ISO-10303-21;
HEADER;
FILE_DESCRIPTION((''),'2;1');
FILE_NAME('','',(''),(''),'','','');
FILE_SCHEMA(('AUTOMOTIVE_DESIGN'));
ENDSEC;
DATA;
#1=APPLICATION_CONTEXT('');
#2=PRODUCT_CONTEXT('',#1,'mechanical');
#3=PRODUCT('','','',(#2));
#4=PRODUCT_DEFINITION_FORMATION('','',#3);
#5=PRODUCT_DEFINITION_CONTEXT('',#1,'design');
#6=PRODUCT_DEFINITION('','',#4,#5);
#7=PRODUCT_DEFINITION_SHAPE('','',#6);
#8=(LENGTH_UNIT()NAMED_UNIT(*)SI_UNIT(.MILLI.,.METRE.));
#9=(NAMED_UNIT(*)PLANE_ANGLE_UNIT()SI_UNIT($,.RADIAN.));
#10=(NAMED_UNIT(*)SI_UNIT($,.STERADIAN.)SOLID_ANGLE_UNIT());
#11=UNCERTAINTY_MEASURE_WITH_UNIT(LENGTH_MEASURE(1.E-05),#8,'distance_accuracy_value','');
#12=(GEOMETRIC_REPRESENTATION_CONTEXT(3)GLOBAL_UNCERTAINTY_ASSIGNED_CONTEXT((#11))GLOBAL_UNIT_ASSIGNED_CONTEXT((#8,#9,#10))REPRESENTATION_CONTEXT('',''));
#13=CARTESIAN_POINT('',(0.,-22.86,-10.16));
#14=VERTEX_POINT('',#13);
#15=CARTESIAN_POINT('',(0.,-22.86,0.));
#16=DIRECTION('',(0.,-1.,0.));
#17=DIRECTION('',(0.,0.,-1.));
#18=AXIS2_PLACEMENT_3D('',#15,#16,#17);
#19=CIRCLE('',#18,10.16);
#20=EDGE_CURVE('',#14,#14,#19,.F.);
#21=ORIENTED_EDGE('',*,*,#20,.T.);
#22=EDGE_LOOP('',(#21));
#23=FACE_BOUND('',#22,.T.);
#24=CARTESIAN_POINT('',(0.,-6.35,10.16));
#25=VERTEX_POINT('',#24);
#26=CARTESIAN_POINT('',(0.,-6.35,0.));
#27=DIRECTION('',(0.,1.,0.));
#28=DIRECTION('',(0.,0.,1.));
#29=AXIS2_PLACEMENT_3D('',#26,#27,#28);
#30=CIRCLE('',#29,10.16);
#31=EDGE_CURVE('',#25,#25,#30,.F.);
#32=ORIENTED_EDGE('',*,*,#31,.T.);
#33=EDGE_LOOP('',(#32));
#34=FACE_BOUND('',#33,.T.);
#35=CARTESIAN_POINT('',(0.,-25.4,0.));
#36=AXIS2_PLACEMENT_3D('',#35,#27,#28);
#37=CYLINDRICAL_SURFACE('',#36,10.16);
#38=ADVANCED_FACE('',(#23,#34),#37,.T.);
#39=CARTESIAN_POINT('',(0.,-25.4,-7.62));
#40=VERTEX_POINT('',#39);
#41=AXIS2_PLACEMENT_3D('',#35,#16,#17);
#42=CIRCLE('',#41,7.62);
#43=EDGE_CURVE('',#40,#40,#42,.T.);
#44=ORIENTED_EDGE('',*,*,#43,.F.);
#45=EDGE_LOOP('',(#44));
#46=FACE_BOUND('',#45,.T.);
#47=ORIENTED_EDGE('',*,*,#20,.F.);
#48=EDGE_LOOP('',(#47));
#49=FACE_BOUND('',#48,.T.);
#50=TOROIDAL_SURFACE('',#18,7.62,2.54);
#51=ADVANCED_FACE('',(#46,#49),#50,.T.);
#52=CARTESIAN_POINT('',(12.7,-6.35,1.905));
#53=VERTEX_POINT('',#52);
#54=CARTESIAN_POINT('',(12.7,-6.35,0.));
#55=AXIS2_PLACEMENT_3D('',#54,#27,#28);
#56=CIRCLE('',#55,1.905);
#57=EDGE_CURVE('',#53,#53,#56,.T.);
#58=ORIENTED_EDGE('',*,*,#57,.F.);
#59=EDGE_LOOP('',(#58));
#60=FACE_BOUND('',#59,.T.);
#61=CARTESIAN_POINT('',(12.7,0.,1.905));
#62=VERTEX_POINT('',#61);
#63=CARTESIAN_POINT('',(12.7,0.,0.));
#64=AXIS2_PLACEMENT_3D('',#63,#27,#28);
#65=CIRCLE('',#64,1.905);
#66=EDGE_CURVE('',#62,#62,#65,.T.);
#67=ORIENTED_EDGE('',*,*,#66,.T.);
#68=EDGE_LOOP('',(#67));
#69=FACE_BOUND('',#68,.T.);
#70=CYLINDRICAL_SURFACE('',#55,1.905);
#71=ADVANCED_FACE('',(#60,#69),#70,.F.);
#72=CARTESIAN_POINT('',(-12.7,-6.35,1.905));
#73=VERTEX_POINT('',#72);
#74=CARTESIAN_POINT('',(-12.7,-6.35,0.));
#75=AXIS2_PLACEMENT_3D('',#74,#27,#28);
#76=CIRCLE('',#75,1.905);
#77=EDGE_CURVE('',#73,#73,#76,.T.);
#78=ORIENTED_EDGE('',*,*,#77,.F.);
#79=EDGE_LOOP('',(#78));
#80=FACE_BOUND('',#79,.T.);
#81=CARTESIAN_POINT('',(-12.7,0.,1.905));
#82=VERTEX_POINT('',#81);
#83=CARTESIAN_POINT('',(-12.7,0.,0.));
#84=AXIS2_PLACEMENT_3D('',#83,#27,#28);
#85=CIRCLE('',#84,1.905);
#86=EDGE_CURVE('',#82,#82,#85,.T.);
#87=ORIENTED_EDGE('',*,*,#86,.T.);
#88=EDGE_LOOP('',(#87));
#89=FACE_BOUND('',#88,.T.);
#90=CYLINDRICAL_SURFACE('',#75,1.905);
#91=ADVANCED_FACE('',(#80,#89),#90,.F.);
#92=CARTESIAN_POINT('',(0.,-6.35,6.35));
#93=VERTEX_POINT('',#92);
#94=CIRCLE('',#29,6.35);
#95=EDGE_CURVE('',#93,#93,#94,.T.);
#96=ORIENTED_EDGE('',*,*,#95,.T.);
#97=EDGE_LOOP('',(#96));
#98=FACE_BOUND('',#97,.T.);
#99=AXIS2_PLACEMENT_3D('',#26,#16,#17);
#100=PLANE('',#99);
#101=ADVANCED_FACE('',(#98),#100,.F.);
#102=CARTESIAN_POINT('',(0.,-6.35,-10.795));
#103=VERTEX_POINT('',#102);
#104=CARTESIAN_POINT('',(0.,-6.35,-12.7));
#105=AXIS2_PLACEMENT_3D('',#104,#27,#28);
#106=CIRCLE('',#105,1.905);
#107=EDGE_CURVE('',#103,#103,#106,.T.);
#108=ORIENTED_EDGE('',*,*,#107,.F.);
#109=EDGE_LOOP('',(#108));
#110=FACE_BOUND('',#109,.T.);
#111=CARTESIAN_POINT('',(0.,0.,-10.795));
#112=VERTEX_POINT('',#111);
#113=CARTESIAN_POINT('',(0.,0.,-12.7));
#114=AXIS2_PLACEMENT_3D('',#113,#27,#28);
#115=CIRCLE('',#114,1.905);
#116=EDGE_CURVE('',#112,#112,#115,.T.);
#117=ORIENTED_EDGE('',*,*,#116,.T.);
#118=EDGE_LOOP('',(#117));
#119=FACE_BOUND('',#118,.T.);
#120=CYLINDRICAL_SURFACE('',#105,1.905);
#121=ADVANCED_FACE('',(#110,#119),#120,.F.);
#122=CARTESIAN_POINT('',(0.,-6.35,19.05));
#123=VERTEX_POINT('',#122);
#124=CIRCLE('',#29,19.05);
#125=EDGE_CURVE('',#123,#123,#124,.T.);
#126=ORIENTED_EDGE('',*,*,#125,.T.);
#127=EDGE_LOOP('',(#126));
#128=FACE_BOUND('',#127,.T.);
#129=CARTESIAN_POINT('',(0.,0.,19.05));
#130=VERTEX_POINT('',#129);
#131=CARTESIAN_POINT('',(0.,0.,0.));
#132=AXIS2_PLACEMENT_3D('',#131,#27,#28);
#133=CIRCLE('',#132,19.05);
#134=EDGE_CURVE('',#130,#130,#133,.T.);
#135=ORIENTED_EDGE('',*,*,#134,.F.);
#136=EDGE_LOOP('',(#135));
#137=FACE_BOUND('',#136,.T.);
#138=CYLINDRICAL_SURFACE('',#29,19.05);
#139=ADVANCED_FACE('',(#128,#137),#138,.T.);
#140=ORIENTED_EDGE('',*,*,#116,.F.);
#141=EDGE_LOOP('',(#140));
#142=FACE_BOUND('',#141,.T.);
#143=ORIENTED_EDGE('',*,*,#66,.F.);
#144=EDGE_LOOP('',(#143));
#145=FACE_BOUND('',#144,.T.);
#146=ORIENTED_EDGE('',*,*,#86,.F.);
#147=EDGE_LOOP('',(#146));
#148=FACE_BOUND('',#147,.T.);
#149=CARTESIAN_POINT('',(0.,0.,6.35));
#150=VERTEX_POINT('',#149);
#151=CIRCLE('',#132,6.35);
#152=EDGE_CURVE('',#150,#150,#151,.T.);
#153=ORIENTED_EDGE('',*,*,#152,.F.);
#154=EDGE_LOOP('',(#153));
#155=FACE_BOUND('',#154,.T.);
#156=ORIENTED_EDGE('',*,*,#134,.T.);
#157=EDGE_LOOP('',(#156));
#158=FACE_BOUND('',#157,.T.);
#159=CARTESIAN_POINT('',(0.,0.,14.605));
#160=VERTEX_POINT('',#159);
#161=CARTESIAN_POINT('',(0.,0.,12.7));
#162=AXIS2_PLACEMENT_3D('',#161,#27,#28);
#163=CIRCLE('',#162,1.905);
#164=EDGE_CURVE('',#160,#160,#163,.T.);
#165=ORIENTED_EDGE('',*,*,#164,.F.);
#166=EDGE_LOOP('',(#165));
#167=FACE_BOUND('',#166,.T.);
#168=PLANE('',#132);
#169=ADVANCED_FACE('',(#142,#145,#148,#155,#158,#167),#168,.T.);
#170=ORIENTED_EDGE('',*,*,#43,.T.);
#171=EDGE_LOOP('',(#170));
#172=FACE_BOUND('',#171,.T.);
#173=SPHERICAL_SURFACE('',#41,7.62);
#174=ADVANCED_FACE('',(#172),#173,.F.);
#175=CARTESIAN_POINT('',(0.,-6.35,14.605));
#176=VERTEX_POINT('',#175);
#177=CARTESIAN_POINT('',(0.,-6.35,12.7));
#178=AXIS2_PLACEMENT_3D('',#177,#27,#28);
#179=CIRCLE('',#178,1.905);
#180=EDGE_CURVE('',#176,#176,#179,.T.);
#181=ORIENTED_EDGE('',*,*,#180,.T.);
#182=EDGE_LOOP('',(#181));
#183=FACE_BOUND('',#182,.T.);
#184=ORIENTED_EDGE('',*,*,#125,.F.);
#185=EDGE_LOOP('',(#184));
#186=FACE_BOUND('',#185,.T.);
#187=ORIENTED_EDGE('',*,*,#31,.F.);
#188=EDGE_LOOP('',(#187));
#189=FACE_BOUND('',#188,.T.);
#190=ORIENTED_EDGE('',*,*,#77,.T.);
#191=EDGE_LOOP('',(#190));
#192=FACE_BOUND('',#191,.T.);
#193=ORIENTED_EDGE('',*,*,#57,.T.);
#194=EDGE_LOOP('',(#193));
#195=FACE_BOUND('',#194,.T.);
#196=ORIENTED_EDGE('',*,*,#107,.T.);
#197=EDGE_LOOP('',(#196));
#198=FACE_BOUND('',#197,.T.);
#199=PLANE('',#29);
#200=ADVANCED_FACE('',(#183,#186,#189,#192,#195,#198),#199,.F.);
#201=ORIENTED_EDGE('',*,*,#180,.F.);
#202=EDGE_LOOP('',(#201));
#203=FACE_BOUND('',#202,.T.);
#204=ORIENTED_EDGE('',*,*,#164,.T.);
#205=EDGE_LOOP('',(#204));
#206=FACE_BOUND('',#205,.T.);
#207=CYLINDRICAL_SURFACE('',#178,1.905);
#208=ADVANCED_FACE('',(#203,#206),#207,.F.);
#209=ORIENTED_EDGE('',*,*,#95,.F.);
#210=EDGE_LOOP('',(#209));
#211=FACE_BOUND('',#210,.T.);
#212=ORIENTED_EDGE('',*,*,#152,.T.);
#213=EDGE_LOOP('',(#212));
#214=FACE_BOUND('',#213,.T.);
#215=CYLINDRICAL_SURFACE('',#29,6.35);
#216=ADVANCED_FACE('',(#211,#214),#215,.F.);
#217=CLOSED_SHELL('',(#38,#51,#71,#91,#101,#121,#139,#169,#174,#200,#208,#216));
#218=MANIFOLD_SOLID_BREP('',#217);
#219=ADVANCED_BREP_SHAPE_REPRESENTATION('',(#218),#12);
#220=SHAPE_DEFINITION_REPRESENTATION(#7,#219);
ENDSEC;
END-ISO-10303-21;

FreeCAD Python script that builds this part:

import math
import FreeCAD as App
import Part
import Sketcher
Q = App.Units.Quantity


def edges_at(feature, points):
    """Names of the edges that pass closest to the given points."""
    edges = feature.Shape.Edges
    near = lambda p: min(range(len(edges)), key=lambda i: edges[i].distToShape(Part.Vertex(*p))[0])
    return sorted({f"Edge{near(p) + 1}" for p in points})

doc = App.newDocument("Part")
body = doc.addObject("PartDesign::Body", "Body")

sketch1 = body.newObject("Sketcher::SketchObject", "Sketch")
sketch1.AttachmentSupport = (doc.getObject("XZ_Plane"), [""])
sketch1.MapMode = "FlatFace"
sketch1.addGeometry([
    Part.Circle(App.Vector(0, 0, 0), App.Vector(0, 0, 1), 19.1),
    Part.Circle(App.Vector(0, -12.7, 0), App.Vector(0, 0, 1), 1.9),
    Part.Circle(App.Vector(-12.7, 0, 0), App.Vector(0, 0, 1), 1.9),
    Part.Circle(App.Vector(12.7, 0, 0), App.Vector(0, 0, 1), 1.9),
    Part.Circle(App.Vector(0, 0, 0), App.Vector(0, 0, 1), 6.3),
    Part.Circle(App.Vector(0, 12.7, 0), App.Vector(0, 0, 1), 1.9),
], False)
sketch1.addConstraint([
    Sketcher.Constraint("Coincident", 0, 3, -1, 1),
    Sketcher.Constraint("Coincident", 4, 3, -1, 1),
    Sketcher.Constraint("Equal", 1, 2),
    Sketcher.Constraint("Equal", 2, 3),
    Sketcher.Constraint("Equal", 3, 5),
    Sketcher.Constraint("Symmetric", 2, 3, 3, 3, -1, 1),
    Sketcher.Constraint("Symmetric", 1, 3, 5, 3, -1, 1),
    Sketcher.Constraint("PointOnObject", 1, 3, -2),
    Sketcher.Constraint("PointOnObject", 2, 3, -1),
    Sketcher.Constraint("Diameter", 0, Q("1.5 in")),
    Sketcher.Constraint("Diameter", 4, Q("0.5 in")),
    Sketcher.Constraint("Diameter", 1, Q("0.15 in")),
    Sketcher.Constraint("DistanceX", 2, 3, 3, 3, Q("1 in")),
    Sketcher.Constraint("DistanceY", 1, 3, 5, 3, Q("1 in")),
])
pad1 = body.newObject("PartDesign::Pad", "Pad")
pad1.Profile = sketch1
pad1.Length = Q("0.25 in")

sketch2 = body.newObject("Sketcher::SketchObject", "Sketch001")
sketch2.AttachmentSupport = (doc.getObject("XZ_Plane"), [""])
sketch2.MapMode = "FlatFace"
sketch2.AttachmentOffset = App.Placement(App.Vector(0, 0, 0.25 * 25.4), App.Rotation())
sketch2.addGeometry(Part.Circle(App.Vector(0, 0, 0), App.Vector(0, 0, 1), 10), False)
sketch2.addConstraint([
    Sketcher.Constraint("Coincident", 0, 3, -1, 1),
    Sketcher.Constraint("Diameter", 0, Q("0.8 in")),
])
pad2 = body.newObject("PartDesign::Pad", "Pad001")
pad2.Profile = sketch2
pad2.Length = Q("0.75 in")
doc.recompute()

fillet = body.newObject("PartDesign::Fillet", "Fillet")
fillet.Base = (pad2, edges_at(pad2, [(0, -25.4, -10.16)]))
fillet.Radius = Q("0.1 in")
body2 = doc.addObject("PartDesign::Body", "Body001")

sketch3 = body2.newObject("Sketcher::SketchObject", "Sketch002")
sketch3.AttachmentSupport = (doc.getObject("XZ_Plane001"), [""])
sketch3.MapMode = "FlatFace"
sketch3.AttachmentOffset = App.Placement(App.Vector(0, 0, 1 * 25.4), App.Rotation())
sketch3.addGeometry([
    Part.LineSegment(App.Vector(0, 8, 0), App.Vector(0, -8, 0)),
    Part.ArcOfCircle(Part.Circle(App.Vector(0, 0, 0), App.Vector(0, 0, 1), 8), math.radians(-90), math.radians(90)),
], False)
sketch3.addConstraint([
    Sketcher.Constraint("Coincident", 0, 1, 1, 2),
    Sketcher.Constraint("Coincident", 1, 1, 0, 2),
    Sketcher.Constraint("Vertical", 0),
    Sketcher.Constraint("Coincident", 1, 3, -1, 1),
    Sketcher.Constraint("PointOnObject", 0, 1, -2),
    Sketcher.Constraint("Radius", 1, Q("0.3 in")),
])
revolution = body2.newObject("PartDesign::Revolution", "Revolution")
revolution.Profile = sketch3
revolution.ReferenceAxis = (sketch3, ["V_Axis"])
revolution.Angle = 360
doc.recompute()

boolean = body.newObject("PartDesign::Boolean", "Boolean")
boolean.Type = "Cut"
boolean.addObjects([body2])

doc.recompute()
